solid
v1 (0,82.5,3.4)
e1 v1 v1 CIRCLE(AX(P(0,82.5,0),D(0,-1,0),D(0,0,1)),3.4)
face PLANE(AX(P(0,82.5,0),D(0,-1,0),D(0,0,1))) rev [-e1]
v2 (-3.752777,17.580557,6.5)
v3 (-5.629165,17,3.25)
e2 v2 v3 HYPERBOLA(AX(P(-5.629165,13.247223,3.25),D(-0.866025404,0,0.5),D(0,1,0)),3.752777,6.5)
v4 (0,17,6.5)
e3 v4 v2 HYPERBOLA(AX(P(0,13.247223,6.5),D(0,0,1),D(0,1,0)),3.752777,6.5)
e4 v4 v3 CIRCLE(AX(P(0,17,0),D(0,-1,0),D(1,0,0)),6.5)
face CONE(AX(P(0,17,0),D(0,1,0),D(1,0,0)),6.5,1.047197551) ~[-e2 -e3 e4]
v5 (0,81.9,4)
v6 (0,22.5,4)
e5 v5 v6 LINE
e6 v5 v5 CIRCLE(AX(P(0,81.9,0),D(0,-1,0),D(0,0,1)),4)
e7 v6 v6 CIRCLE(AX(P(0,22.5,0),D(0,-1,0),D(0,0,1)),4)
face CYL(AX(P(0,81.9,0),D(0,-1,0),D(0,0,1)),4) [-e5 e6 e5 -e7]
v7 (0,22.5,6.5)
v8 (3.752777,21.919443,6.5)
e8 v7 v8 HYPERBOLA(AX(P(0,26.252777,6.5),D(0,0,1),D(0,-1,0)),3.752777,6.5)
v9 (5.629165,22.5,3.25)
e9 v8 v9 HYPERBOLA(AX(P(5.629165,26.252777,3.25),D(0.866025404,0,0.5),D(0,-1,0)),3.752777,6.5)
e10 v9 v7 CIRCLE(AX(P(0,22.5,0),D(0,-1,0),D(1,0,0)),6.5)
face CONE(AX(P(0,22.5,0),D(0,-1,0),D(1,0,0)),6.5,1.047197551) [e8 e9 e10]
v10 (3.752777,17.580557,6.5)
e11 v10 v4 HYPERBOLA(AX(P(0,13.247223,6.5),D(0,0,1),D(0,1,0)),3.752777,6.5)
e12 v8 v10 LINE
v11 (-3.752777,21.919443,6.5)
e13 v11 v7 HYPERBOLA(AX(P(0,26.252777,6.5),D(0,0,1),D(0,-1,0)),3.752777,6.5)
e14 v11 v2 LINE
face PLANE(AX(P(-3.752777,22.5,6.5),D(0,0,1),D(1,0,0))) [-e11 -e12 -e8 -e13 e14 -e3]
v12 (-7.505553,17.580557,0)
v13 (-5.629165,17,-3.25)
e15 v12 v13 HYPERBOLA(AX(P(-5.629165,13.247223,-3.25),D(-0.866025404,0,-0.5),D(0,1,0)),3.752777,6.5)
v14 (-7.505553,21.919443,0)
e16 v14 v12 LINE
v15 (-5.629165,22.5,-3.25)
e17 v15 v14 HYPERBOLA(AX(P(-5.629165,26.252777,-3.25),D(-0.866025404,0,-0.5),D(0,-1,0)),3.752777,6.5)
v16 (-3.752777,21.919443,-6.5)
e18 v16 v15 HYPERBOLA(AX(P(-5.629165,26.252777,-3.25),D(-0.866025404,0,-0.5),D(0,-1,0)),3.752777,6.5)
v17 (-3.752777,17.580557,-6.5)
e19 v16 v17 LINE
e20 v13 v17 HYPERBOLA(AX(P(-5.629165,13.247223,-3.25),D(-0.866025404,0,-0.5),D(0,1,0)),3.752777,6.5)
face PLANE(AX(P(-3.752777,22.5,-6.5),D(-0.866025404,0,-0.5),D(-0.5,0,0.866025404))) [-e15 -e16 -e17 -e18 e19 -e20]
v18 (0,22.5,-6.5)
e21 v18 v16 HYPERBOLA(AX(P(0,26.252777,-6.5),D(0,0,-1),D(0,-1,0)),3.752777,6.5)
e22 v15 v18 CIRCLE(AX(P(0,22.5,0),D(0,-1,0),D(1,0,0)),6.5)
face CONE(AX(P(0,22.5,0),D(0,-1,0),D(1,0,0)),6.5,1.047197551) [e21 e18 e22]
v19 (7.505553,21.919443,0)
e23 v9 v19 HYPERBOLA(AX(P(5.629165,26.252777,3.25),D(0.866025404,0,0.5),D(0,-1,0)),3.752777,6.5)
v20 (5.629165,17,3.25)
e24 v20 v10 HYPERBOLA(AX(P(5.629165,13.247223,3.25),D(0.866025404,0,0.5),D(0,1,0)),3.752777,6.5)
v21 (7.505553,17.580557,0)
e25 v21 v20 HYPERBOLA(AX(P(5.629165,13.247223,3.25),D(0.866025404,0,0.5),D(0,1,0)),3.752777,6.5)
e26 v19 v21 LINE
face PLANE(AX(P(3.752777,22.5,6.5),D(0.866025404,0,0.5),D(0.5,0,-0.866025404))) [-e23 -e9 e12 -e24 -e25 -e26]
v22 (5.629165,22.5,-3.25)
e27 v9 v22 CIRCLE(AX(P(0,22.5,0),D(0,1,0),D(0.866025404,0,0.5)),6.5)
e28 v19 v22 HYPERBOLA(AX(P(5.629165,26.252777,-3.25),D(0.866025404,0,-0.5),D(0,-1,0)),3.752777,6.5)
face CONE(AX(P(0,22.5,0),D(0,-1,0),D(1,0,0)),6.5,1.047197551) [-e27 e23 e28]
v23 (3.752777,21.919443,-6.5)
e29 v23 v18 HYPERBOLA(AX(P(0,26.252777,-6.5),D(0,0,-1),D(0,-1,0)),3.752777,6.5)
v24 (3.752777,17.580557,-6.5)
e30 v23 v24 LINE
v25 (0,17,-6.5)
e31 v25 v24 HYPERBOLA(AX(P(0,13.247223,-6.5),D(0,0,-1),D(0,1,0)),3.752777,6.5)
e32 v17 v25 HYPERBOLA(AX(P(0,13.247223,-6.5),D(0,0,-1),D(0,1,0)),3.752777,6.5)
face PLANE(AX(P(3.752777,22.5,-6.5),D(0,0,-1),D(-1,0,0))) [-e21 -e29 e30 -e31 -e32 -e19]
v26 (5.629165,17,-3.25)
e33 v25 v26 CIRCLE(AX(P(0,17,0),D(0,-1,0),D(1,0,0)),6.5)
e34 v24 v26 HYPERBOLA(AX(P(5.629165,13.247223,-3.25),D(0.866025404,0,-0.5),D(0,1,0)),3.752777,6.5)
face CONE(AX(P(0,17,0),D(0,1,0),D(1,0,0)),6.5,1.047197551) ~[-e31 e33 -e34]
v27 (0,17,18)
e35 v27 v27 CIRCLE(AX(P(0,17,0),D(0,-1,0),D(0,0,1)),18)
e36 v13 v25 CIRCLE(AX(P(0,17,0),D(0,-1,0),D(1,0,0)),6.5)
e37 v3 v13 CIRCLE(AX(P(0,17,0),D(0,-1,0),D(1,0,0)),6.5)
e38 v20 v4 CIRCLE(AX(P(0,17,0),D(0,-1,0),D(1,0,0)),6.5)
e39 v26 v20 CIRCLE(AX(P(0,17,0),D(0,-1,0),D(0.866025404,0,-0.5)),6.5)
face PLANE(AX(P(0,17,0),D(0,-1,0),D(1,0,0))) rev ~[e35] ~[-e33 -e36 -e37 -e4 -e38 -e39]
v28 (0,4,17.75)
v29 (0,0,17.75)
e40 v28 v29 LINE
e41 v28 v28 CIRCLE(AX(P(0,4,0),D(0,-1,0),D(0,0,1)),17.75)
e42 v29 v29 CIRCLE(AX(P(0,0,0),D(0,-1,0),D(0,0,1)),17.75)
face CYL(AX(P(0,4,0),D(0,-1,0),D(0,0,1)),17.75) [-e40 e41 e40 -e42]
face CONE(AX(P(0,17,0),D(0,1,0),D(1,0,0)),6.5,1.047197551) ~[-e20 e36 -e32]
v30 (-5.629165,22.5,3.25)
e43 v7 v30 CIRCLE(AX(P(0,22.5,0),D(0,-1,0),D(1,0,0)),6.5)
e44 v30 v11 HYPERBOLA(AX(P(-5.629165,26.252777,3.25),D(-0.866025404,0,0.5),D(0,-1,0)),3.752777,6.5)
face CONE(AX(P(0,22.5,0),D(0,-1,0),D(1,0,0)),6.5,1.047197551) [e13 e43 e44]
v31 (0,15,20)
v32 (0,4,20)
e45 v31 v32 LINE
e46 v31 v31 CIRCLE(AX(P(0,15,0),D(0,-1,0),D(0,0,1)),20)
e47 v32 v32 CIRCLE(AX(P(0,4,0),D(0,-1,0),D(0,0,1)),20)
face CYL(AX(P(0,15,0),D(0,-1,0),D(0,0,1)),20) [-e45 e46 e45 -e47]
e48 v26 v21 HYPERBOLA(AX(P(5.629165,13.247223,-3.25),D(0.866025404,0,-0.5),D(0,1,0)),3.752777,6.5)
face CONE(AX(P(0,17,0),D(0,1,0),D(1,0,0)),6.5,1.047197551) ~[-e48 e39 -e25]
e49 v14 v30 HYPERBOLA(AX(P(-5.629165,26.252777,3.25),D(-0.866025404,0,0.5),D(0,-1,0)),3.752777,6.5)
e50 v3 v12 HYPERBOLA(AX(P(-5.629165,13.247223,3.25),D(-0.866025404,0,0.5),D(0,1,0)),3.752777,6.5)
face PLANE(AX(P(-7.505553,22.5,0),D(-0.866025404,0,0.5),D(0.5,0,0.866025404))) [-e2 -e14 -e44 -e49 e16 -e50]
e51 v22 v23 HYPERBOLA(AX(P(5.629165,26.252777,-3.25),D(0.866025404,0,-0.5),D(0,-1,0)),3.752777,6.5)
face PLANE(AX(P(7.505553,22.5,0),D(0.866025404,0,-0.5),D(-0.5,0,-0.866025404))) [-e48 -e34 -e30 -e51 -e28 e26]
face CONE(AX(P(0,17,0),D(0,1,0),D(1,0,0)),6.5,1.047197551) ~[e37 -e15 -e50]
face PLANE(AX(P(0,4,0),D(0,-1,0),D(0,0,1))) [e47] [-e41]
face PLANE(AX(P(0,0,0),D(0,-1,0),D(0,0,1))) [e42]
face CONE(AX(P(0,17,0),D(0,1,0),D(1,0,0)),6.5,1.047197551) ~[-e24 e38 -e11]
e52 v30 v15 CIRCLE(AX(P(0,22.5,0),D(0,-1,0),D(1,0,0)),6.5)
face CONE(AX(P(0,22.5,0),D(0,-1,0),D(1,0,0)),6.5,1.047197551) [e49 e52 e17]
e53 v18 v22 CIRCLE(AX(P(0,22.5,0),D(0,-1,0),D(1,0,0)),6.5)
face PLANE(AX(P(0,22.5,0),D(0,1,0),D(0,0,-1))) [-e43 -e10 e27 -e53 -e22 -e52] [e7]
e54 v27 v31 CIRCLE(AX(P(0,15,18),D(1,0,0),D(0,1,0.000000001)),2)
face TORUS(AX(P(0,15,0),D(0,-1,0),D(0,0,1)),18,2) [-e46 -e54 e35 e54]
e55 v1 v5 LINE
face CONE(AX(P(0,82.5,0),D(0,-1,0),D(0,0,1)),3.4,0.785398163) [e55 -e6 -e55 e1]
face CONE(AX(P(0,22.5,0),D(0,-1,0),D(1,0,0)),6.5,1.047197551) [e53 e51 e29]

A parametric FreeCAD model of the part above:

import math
import FreeCAD as App
import Part
import Sketcher
from FreeCAD import Vector
Q = App.Units.Quantity


def add_polygon(sketch, points):
    """Adds a closed chain of lines whose ends are joined by coincident constraints."""
    first, n = sketch.GeometryCount, len(points)
    for a, b in zip(points, points[1:] + points[:1]):
        sketch.addGeometry(Part.LineSegment(App.Vector(*a, 0), App.Vector(*b, 0)), False)
    for i in range(n):
        sketch.addConstraint(Sketcher.Constraint("Coincident", first + i, 2, first + (i + 1) % n, 1))

doc = App.newDocument("Part")
body = doc.addObject("PartDesign::Body", "Body")

sketch1 = doc.addObject("Sketcher::SketchObject", "Sketch")
body.addObject(sketch1)
sketch1.AttachmentSupport = (doc.XY_Plane, [""])
sketch1.MapMode = "FlatFace"
sketch1.addGeometry(Part.LineSegment(Vector(-17.8, 0, 0), Vector(0, 0, 0)), False)
sketch1.addGeometry(Part.LineSegment(Vector(0, 0, 0), Vector(0, 82.5, 0)), False)
sketch1.addGeometry(Part.LineSegment(Vector(0, 82.5, 0), Vector(-3.4, 82.5, 0)), False)
sketch1.addGeometry(Part.LineSegment(Vector(-3.4, 82.5, 0), Vector(-4, 81.9, 0)), False)
sketch1.addGeometry(Part.LineSegment(Vector(-4, 81.9, 0), Vector(-4, 17, 0)), False)
sketch1.addGeometry(Part.LineSegment(Vector(-4, 17, 0), Vector(-18, 17, 0)), False)
sketch1.addGeometry(Part.ArcOfCircle(Part.Circle(Vector(-18, 15, 0), Vector(0, 0, 1), 2), math.radians(90), math.radians(180)), False)
sketch1.addGeometry(Part.LineSegment(Vector(-20, 15, 0), Vector(-20, 4, 0)), False)
sketch1.addGeometry(Part.LineSegment(Vector(-20, 4, 0), Vector(-17.8, 4, 0)), False)
sketch1.addGeometry(Part.LineSegment(Vector(-17.8, 4, 0), Vector(-17.8, 0, 0)), False)
sketch1.addConstraint(Sketcher.Constraint("Coincident", 0, 2, 1, 1))
sketch1.addConstraint(Sketcher.Constraint("Coincident", 1, 2, 2, 1))
sketch1.addConstraint(Sketcher.Constraint("Coincident", 2, 2, 3, 1))
sketch1.addConstraint(Sketcher.Constraint("Coincident", 3, 2, 4, 1))
sketch1.addConstraint(Sketcher.Constraint("Coincident", 4, 2, 5, 1))
sketch1.addConstraint(Sketcher.Constraint("Tangent", 5, 2, 6, 1))
sketch1.addConstraint(Sketcher.Constraint("Tangent", 6, 2, 7, 1))
sketch1.addConstraint(Sketcher.Constraint("Coincident", 7, 2, 8, 1))
sketch1.addConstraint(Sketcher.Constraint("Coincident", 8, 2, 9, 1))
sketch1.addConstraint(Sketcher.Constraint("Coincident", 9, 2, 0, 1))
sketch1.addConstraint(Sketcher.Constraint("Horizontal", 0))
sketch1.addConstraint(Sketcher.Constraint("Vertical", 1))
sketch1.addConstraint(Sketcher.Constraint("Horizontal", 2))
sketch1.addConstraint(Sketcher.Constraint("Vertical", 4))
sketch1.addConstraint(Sketcher.Constraint("Horizontal", 5))
sketch1.addConstraint(Sketcher.Constraint("Vertical", 7))
sketch1.addConstraint(Sketcher.Constraint("Horizontal", 8))
sketch1.addConstraint(Sketcher.Constraint("Vertical", 9))
sketch1.addConstraint(Sketcher.Constraint("Coincident", 0, 2, -1, 1))
sketch1.addConstraint(Sketcher.Constraint("Radius", 6, 2.0))
sketch1.addConstraint(Sketcher.Constraint("DistanceX", 5, 2, 5, 1, 14.0))
sketch1.addConstraint(Sketcher.Constraint("DistanceY", 7, 2, 7, 1, 11.0))
sketch1.addConstraint(Sketcher.Constraint("DistanceY", 9, 2, 9, 1, 4.0))
sketch1.addConstraint(Sketcher.Constraint("Angle", 3, Q("-135 deg")))
sketch1.addConstraint(Sketcher.Constraint("DistanceX", 2, 2, 2, 1, 3.4))
sketch1.addConstraint(Sketcher.Constraint("DistanceY", 1, 1, 1, 2, 82.5))
sketch1.addConstraint(Sketcher.Constraint("DistanceY", 4, 2, 4, 1, 64.9))
sketch1.addConstraint(Sketcher.Constraint("DistanceX", 0, 1, 0, 2, 17.75))
revolution = doc.addObject("PartDesign::Revolution", "Revolution")
body.addObject(revolution)
revolution.Profile = sketch1
revolution.ReferenceAxis = (sketch1, ["V_Axis"])
revolution.Angle = 360

sketch2 = doc.addObject("Sketcher::SketchObject", "Sketch001")
body.addObject(sketch2)
sketch2.AttachmentSupport = (doc.XZ_Plane, [""])
sketch2.MapMode = "FlatFace"
sketch2.AttachmentOffset = App.Placement(Vector(0, 0, -22.5), App.Rotation())
add_polygon(sketch2, [(4, -6), (-4, -6), (-8, 0), (-4, 6), (4, 6), (8, 0)])
sketch2.addConstraint(Sketcher.Constraint("Horizontal", 0))
sketch2.addConstraint(Sketcher.Constraint("Horizontal", 3))
sketch2.addConstraint(Sketcher.Constraint("Symmetric", 0, 2, 3, 2, -1, 1))
sketch2.addConstraint(Sketcher.Constraint("Symmetric", 1, 2, 4, 2, -1, 1))
sketch2.addConstraint(Sketcher.Constraint("PointOnObject", 1, 2, -1))
sketch2.addConstraint(Sketcher.Constraint("Parallel", 2, 5))
sketch2.addConstraint(Sketcher.Constraint("Vertical", 0, 2, 2, 2))
sketch2.addConstraint(Sketcher.Constraint("Angle", 1, Q("120 deg")))
sketch2.addConstraint(Sketcher.Constraint("DistanceY", 0, 2, 2, 2, 13.0))
sketch2.addConstraint(Sketcher.Constraint("DistanceX", 0, 2, 0, 1, 7.505554))
pad1 = doc.addObject("PartDesign::Pad", "Pad")
body.addObject(pad1)
pad1.Profile = sketch2
pad1.Length = 5.5

sketch3 = doc.addObject("Sketcher::SketchObject", "Sketch002")
body.addObject(sketch3)
sketch3.AttachmentSupport = (doc.XY_Plane, [""])
sketch3.MapMode = "FlatFace"
add_polygon(sketch3, [(7.5, 22.5), (6.5, 22.5), (7.5, 21.9)])
add_polygon(sketch3, [(6.5, 17), (7.5, 17), (7.5, 17.6)])
sketch3.addConstraint(Sketcher.Constraint("Horizontal", 0))
sketch3.addConstraint(Sketcher.Constraint("Vertical", 2))
sketch3.addConstraint(Sketcher.Constraint("Horizontal", 3))
sketch3.addConstraint(Sketcher.Constraint("Vertical", 4))
sketch3.addConstraint(Sketcher.Constraint("Vertical", 2, 2, 3, 2))
sketch3.addConstraint(Sketcher.Constraint("Vertical", 0, 2, 5, 2))
sketch3.addConstraint(Sketcher.Constraint("Equal", 2, 4))
sketch3.addConstraint(Sketcher.Constraint("Angle", 1, Q("-30 deg")))
sketch3.addConstraint(Sketcher.Constraint("DistanceY", -1, 1, 3, 2, 17.0))
sketch3.addConstraint(Sketcher.Constraint("DistanceX", -1, 1, 0, 2, 6.5))
sketch3.addConstraint(Sketcher.Constraint("DistanceY", -1, 1, 0, 2, 22.5))
sketch3.addConstraint(Sketcher.Constraint("DistanceX", 0, 2, 0, 1, 1.005553))
groove = doc.addObject("PartDesign::Groove", "Groove")
body.addObject(groove)
groove.Profile = sketch3
groove.ReferenceAxis = (sketch3, ["V_Axis"])
groove.Angle = 360

doc.recompute()
